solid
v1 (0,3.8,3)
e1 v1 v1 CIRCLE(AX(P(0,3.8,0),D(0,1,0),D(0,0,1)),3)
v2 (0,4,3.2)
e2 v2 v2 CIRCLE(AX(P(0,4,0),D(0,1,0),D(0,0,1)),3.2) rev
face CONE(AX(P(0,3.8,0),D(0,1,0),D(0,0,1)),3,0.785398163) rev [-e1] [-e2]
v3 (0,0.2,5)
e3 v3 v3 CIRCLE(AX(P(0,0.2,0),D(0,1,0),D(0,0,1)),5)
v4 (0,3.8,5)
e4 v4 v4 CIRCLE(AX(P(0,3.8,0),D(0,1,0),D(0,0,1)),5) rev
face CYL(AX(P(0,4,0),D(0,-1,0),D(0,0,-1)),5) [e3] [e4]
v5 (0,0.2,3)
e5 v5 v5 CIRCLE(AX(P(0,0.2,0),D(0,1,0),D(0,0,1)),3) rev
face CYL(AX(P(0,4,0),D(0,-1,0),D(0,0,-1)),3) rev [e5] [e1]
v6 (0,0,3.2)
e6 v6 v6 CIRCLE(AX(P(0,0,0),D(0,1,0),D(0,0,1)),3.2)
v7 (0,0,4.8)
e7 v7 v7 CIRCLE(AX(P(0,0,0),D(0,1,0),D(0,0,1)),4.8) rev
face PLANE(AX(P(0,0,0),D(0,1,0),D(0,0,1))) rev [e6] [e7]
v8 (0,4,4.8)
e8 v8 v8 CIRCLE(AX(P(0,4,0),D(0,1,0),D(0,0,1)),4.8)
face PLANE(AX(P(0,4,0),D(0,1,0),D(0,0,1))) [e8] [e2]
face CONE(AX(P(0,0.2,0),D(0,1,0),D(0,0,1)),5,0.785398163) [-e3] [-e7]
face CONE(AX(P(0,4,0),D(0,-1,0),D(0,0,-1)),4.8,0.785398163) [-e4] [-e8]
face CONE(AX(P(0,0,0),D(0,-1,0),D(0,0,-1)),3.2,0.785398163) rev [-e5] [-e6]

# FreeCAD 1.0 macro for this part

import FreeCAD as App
import Part
import Sketcher
from FreeCAD import Vector
Q = App.Units.Quantity


def edges_at(feature, points):
    """Names of the edges that pass closest to the given points."""
    edges = feature.Shape.Edges
    near = lambda p: min(range(len(edges)), key=lambda i: edges[i].distToShape(Part.Vertex(*p))[0])
    return sorted({f"Edge{near(p) + 1}" for p in points})

doc = App.newDocument("Part")
params = doc.addObject("Spreadsheet::Sheet", "Params")
for row, (alias, value) in enumerate([
    ("sketch1_diameter", "10 mm"),
    ("sketch1_diameter2", "6 mm"),
    ("pad1_length", "4 mm"),
    ("chamfer_size", "0.2 mm"),
], start=1):
    params.set(f"A{row}", alias)
    params.set(f"B{row}", "=" + value)
    params.setAlias(f"B{row}", alias)

body = doc.addObject("PartDesign::Body", "Body")

sketch1 = body.newObject("Sketcher::SketchObject", "Sketch")
sketch1.AttachmentSupport = (doc.getObject("XZ_Plane"), [""])
sketch1.MapMode = "FlatFace"
sketch1.addGeometry(Part.Circle(Vector(0, 0, 0), Vector(0, 0, 1), 5), False)
sketch1.addGeometry(Part.Circle(Vector(0, 0, 0), Vector(0, 0, 1), 3), False)
sketch1.addConstraint(Sketcher.Constraint("Coincident", 0, 3, -1, 1))
sketch1.addConstraint(Sketcher.Constraint("Coincident", 1, 3, -1, 1))
sketch1.addConstraint(Sketcher.Constraint("Diameter", 0, Q("10 mm")))
sketch1.addConstraint(Sketcher.Constraint("Diameter", 1, Q("6 mm")))
sketch1.setExpression("Constraints[2]", "Params.sketch1_diameter")
sketch1.setExpression("Constraints[3]", "Params.sketch1_diameter2")
pad1 = body.newObject("PartDesign::Pad", "Pad")
pad1.Profile = sketch1
pad1.setExpression("Length", "Params.pad1_length")
pad1.Reversed = True
doc.recompute()

chamfer = body.newObject("PartDesign::Chamfer", "Chamfer")
chamfer.Base = (pad1, edges_at(pad1, [
    (0, 4, -5),
    (0, 0, -5),
    (0, 0, -3),
    (0, 4, -3),
]))
chamfer.setExpression("Size", "Params.chamfer_size")

doc.recompute()
